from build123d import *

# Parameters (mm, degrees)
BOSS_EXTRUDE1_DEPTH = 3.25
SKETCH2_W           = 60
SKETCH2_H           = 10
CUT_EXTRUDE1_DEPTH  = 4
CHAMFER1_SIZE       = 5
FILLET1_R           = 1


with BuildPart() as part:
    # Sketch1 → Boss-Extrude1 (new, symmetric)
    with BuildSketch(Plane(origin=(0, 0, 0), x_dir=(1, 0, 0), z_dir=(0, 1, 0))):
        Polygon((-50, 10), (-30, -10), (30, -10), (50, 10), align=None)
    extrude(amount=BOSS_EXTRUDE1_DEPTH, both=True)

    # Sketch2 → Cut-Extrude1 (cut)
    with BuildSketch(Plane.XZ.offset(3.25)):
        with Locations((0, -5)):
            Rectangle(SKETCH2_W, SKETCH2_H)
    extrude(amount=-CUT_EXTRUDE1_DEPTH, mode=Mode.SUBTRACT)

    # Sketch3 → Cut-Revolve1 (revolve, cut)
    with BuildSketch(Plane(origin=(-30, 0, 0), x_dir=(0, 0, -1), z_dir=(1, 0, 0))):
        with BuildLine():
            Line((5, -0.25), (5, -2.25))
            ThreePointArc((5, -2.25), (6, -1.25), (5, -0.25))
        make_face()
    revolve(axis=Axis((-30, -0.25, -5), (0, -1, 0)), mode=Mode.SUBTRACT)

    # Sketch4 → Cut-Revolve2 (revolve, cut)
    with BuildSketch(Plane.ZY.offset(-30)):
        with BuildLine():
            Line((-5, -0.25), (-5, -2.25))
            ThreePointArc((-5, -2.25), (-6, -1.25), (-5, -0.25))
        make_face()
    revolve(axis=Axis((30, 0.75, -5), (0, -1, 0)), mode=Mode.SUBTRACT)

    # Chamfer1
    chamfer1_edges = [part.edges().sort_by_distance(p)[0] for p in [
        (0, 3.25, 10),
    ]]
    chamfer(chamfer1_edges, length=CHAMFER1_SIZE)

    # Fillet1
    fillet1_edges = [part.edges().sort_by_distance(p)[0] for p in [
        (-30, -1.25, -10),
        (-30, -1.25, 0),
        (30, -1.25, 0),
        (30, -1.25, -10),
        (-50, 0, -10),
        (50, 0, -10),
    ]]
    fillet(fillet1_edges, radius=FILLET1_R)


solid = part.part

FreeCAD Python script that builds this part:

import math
import FreeCAD as App
import Part
import Sketcher
from FreeCAD import Vector
Q = App.Units.Quantity


def edges_at(feature, points):
    """Names of the edges that pass closest to the given points."""
    edges = feature.Shape.Edges
    near = lambda p: min(range(len(edges)), key=lambda i: edges[i].distToShape(Part.Vertex(*p))[0])
    return sorted({f"Edge{near(p) + 1}" for p in points})

doc = App.newDocument("Part")
body = doc.addObject("PartDesign::Body", "Body")

# Sketch on XZ plane
sketch1 = body.newObject("Sketcher::SketchObject", "Sketch")
sketch1.AttachmentSupport = (doc.getObject("XZ_Plane"), [""])
sketch1.MapMode = "FlatFace"
sketch1.addGeometry([
    Part.LineSegment(Vector(-50, -10, 0), Vector(-30, 10, 0)),
    Part.LineSegment(Vector(-30, 10, 0), Vector(30, 10, 0)),
    Part.LineSegment(Vector(30, 10, 0), Vector(50, -10, 0)),
    Part.LineSegment(Vector(50, -10, 0), Vector(-50, -10, 0)),
], False)
sketch1.addConstraint([
    Sketcher.Constraint("Coincident", 0, 2, 1, 1),
    Sketcher.Constraint("Coincident", 1, 2, 2, 1),
    Sketcher.Constraint("Coincident", 2, 2, 3, 1),
    Sketcher.Constraint("Coincident", 3, 2, 0, 1),
    Sketcher.Constraint("Horizontal", 1),
    Sketcher.Constraint("Horizontal", 3),
    Sketcher.Constraint("Perpendicular", 0, 2),
    Sketcher.Constraint("Equal", 0, 2),
    Sketcher.Constraint("DistanceX", 1, 1, 1, 2, Q("60 mm")),
    Sketcher.Constraint("DistanceX", 3, 2, 3, 1, Q("100 mm")),
    Sketcher.Constraint("DistanceX", 0, 2, -1, 1, Q("30 mm")),
    Sketcher.Constraint("DistanceY", -1, 1, 0, 2, Q("10 mm")),
])
pad1 = body.newObject("PartDesign::Pad", "Pad")
pad1.Profile = sketch1
pad1.Length = 6.5
pad1.Midplane = True

# Sketch on XZ plane
sketch2 = body.newObject("Sketcher::SketchObject", "Sketch001")
sketch2.AttachmentSupport = (doc.getObject("XZ_Plane"), [""])
sketch2.MapMode = "FlatFace"
sketch2.AttachmentOffset = App.Placement(Vector(0, 0, 3.25), App.Rotation())
sketch2.addGeometry([
    Part.LineSegment(Vector(-30, 0, 0), Vector(-30, -10, 0)),
    Part.LineSegment(Vector(-30, -10, 0), Vector(30, -10, 0)),
    Part.LineSegment(Vector(30, -10, 0), Vector(30, 0, 0)),
    Part.LineSegment(Vector(30, 0, 0), Vector(-30, 0, 0)),
], False)
sketch2.addConstraint([
    Sketcher.Constraint("Coincident", 0, 2, 1, 1),
    Sketcher.Constraint("Coincident", 1, 2, 2, 1),
    Sketcher.Constraint("Coincident", 2, 2, 3, 1),
    Sketcher.Constraint("Coincident", 3, 2, 0, 1),
    Sketcher.Constraint("Vertical", 0),
    Sketcher.Constraint("Horizontal", 1),
    Sketcher.Constraint("Vertical", 2),
    Sketcher.Constraint("Horizontal", 3),
    Sketcher.Constraint("Symmetric", 2, 2, 3, 2, -1, 1),
    Sketcher.Constraint("DistanceX", 1, 1, 1, 2, Q("60 mm")),
    Sketcher.Constraint("DistanceY", 0, 2, 0, 1, Q("10 mm")),
])
pocket1 = body.newObject("PartDesign::Pocket", "Pocket")
pocket1.Profile = sketch2
pocket1.Length = 4

# Sketch on YZ plane
sketch3 = body.newObject("Sketcher::SketchObject", "Sketch002")
sketch3.AttachmentSupport = (doc.getObject("YZ_Plane"), [""])
sketch3.MapMode = "FlatFace"
sketch3.AttachmentOffset = App.Placement(Vector(0, 0, -30), App.Rotation())
sketch3.addGeometry([
    Part.LineSegment(Vector(-0.2, -5, 0), Vector(-2.2, -5, 0)),
    Part.ArcOfCircle(Part.Circle(Vector(-1.2, -5, 0), Vector(0, 0, 1), 1), math.radians(180), math.radians(360)),
], False)
sketch3.addGeometry(Part.LineSegment(Vector(-0.2, -5, 0), Vector(-2.2, -5, 0)), True)  # axis
sketch3.addConstraint([
    Sketcher.Constraint("Coincident", 0, 1, 1, 2),
    Sketcher.Constraint("Coincident", 1, 1, 0, 2),
    Sketcher.Constraint("Horizontal", 0),
    Sketcher.Constraint("Horizontal", 2),
    Sketcher.Constraint("Coincident", 2, 1, 0, 1),
    Sketcher.Constraint("Horizontal", 1, 3, 0, 1),
    Sketcher.Constraint("Equal", 0, 2),
    Sketcher.Constraint("Radius", 1, Q("1 mm")),
    Sketcher.Constraint("DistanceY", 1, 3, -1, 1, Q("5 mm")),
    Sketcher.Constraint("DistanceX", 1, 3, -1, 1, Q("1.25 mm")),
])
groove = body.newObject("PartDesign::Groove", "Groove")
groove.Profile = sketch3
groove.ReferenceAxis = (sketch3, ["Axis0"])
groove.Angle = 360

# Sketch on YZ plane
sketch4 = body.newObject("Sketcher::SketchObject", "Sketch003")
sketch4.AttachmentSupport = (doc.getObject("YZ_Plane"), [""])
sketch4.MapMode = "FlatFace"
sketch4.AttachmentOffset = App.Placement(Vector(0, 0, 30), App.Rotation())
sketch4.addGeometry([
    Part.LineSegment(Vector(-2.2, -5, 0), Vector(-0.2, -5, 0)),
    Part.ArcOfCircle(Part.Circle(Vector(-1.2, -5, 0), Vector(0, 0, 1), 1), math.radians(180), math.radians(360)),
], False)
sketch4.addGeometry(Part.LineSegment(Vector(-0.2, -5, 0), Vector(-2.2, -5, 0)), True)  # axis
sketch4.addConstraint([
    Sketcher.Constraint("Coincident", 0, 1, 1, 1),
    Sketcher.Constraint("Coincident", 1, 2, 0, 2),
    Sketcher.Constraint("Horizontal", 0),
    Sketcher.Constraint("Horizontal", 2),
    Sketcher.Constraint("Coincident", 2, 1, 1, 2),
    Sketcher.Constraint("Horizontal", 1, 3, 0, 1),
    Sketcher.Constraint("Equal", 0, 2),
    Sketcher.Constraint("Radius", 1, Q("1 mm")),
    Sketcher.Constraint("DistanceY", 1, 3, -1, 1, Q("5 mm")),
    Sketcher.Constraint("DistanceX", 1, 3, -1, 1, Q("1.25 mm")),
])
groove2 = body.newObject("PartDesign::Groove", "Groove001")
groove2.Profile = sketch4
groove2.ReferenceAxis = (sketch4, ["Axis0"])
groove2.Angle = 360
doc.recompute()

chamfer = body.newObject("PartDesign::Chamfer", "Chamfer")
chamfer.Base = (groove2, edges_at(groove2, [(0, 3.25, 10)]))
chamfer.Size = 5
doc.recompute()

fillet = body.newObject("PartDesign::Fillet", "Fillet")
fillet.Base = (chamfer, edges_at(chamfer, [
    (-30, -1.25, -10),
    (-30, -1.25, 0),
    (30, -1.25, 0),
    (30, -1.25, -10),
    (-50, 0, -10),
    (50, 0, -10),
]))
fillet.Radius = 1

doc.recompute()
